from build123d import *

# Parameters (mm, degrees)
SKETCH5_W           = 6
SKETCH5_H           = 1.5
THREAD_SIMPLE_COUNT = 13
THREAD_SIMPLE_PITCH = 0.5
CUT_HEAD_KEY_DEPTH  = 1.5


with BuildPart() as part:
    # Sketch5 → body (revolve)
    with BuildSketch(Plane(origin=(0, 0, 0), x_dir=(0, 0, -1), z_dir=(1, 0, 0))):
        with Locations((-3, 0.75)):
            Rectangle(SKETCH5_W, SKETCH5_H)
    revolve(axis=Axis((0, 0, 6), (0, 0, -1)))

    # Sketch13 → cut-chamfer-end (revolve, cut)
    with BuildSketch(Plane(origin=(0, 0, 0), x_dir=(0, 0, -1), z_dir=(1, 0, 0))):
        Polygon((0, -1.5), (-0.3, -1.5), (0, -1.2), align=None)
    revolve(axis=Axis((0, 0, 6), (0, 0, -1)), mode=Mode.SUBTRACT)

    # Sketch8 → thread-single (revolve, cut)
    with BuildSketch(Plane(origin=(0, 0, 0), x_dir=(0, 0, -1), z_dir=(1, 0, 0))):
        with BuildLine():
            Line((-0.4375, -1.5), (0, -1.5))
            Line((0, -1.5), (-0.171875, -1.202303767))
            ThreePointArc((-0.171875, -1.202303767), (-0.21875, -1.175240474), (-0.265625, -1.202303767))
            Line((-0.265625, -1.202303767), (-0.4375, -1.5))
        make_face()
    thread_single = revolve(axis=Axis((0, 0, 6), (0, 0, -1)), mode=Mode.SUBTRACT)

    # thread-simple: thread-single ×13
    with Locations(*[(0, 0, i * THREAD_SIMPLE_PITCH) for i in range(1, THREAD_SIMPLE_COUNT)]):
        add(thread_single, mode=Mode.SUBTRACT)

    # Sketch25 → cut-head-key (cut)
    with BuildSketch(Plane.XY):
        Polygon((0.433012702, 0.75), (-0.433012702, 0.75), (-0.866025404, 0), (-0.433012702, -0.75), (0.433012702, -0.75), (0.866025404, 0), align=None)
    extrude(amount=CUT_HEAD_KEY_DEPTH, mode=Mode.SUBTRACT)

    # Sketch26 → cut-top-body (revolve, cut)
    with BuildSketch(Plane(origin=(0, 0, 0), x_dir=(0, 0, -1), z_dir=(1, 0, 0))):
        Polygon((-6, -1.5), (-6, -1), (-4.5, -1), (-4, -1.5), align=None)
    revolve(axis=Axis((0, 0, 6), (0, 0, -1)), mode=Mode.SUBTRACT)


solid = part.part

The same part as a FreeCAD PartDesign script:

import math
import FreeCAD as App
import Part
import Sketcher
Q = App.Units.Quantity

doc = App.newDocument("Part")
params = doc.addObject("Spreadsheet::Sheet", "Params")
for row, (alias, value) in enumerate([
    ("sketch1_height", "6 mm"),
    ("sketch1_width", "1.5 mm"),
    ("revolution_angle", "360 deg"),
    ("sketch2_width", "0.3 mm"),
    ("groove_angle", "360 deg"),
    ("groove2_angle", "360 deg"),
    ("linearpattern_pitch", "0.5 mm"),
    ("pocket1_length", "1.5 mm"),
    ("sketch5_height", "2 mm"),
    ("sketch5_width", "0.5 mm"),
    ("groove3_angle", "360 deg"),
], start=1):
    params.set(f"A{row}", alias)
    params.set(f"B{row}", "=" + value)
    params.setAlias(f"B{row}", alias)

body = doc.addObject("PartDesign::Body", "Body")

# Sketch on YZ plane
sketch1 = doc.addObject("Sketcher::SketchObject", "Sketch")
body.addObject(sketch1)
sketch1.AttachmentSupport = (doc.YZ_Plane, [""])
sketch1.MapMode = "FlatFace"
sketch1.addGeometry([
    Part.LineSegment(App.Vector(1.5, 6, 0), App.Vector(0, 6, 0)),
    Part.LineSegment(App.Vector(0, 6, 0), App.Vector(0, 0, 0)),
    Part.LineSegment(App.Vector(0, 0, 0), App.Vector(1.5, 0, 0)),
    Part.LineSegment(App.Vector(1.5, 0, 0), App.Vector(1.5, 6, 0)),
], False)
sketch1.addConstraint([
    Sketcher.Constraint("Coincident", 0, 2, 1, 1),
    Sketcher.Constraint("Coincident", 1, 2, 2, 1),
    Sketcher.Constraint("Coincident", 2, 2, 3, 1),
    Sketcher.Constraint("Coincident", 3, 2, 0, 1),
    Sketcher.Constraint("Horizontal", 0),
    Sketcher.Constraint("Vertical", 1),
    Sketcher.Constraint("Horizontal", 2),
    Sketcher.Constraint("Vertical", 3),
    Sketcher.Constraint("Coincident", 1, 2, -1, 1),
    Sketcher.Constraint("DistanceY", 1, 2, 1, 1, Q("6 mm")),
    Sketcher.Constraint("DistanceX", 0, 2, 0, 1, Q("1.5 mm")),
])
sketch1.setExpression("Constraints[9]", "Params.sketch1_height")
sketch1.setExpression("Constraints[10]", "Params.sketch1_width")
revolution = doc.addObject("PartDesign::Revolution", "Revolution")
body.addObject(revolution)
revolution.Profile = sketch1
revolution.ReferenceAxis = (sketch1, ["V_Axis"])
revolution.setExpression("Angle", "Params.revolution_angle")

# Sketch on YZ plane
sketch2 = doc.addObject("Sketcher::SketchObject", "Sketch001")
body.addObject(sketch2)
sketch2.AttachmentSupport = (doc.YZ_Plane, [""])
sketch2.MapMode = "FlatFace"
sketch2.addGeometry([
    Part.LineSegment(App.Vector(-1.5, 0.3, 0), App.Vector(-1.5, 0, 0)),
    Part.LineSegment(App.Vector(-1.5, 0, 0), App.Vector(-1.2, 0, 0)),
    Part.LineSegment(App.Vector(-1.2, 0, 0), App.Vector(-1.5, 0.3, 0)),
], False)
sketch2.addConstraint([
    Sketcher.Constraint("Coincident", 0, 2, 1, 1),
    Sketcher.Constraint("Coincident", 1, 2, 2, 1),
    Sketcher.Constraint("Coincident", 2, 2, 0, 1),
    Sketcher.Constraint("Vertical", 0),
    Sketcher.Constraint("Horizontal", 1),
    Sketcher.Constraint("PointOnObject", 0, 2, -1),
    Sketcher.Constraint("Equal", 1, 0),
    Sketcher.Constraint("DistanceX", 1, 1, 1, 2, Q("0.3 mm")),
    Sketcher.Constraint("DistanceX", 0, 2, -1, 1, Q("1.5 mm")),
])
sketch2.setExpression("Constraints[7]", "Params.sketch2_width")
groove = doc.addObject("PartDesign::Groove", "Groove")
body.addObject(groove)
groove.Profile = sketch2
groove.ReferenceAxis = (sketch2, ["V_Axis"])
groove.setExpression("Angle", "Params.groove_angle")

# Sketch on YZ plane
sketch3 = doc.addObject("Sketcher::SketchObject", "Sketch002")
body.addObject(sketch3)
sketch3.AttachmentSupport = (doc.YZ_Plane, [""])
sketch3.MapMode = "FlatFace"
sketch3.addGeometry([
    Part.LineSegment(App.Vector(-1.5, 0.44, 0), App.Vector(-1.5, 0, 0)),
    Part.LineSegment(App.Vector(-1.5, 0, 0), App.Vector(-1.2, 0.17, 0)),
    Part.ArcOfCircle(Part.Circle(App.Vector(-1.23, 0.22, 0), App.Vector(0, 0, 1), 0.05), math.radians(-60), math.radians(60)),
    Part.LineSegment(App.Vector(-1.2, 0.27, 0), App.Vector(-1.5, 0.44, 0)),
], False)
sketch3.addConstraint([
    Sketcher.Constraint("Coincident", 0, 2, 1, 1),
    Sketcher.Constraint("Tangent", 1, 2, 2, 1),
    Sketcher.Constraint("Tangent", 2, 2, 3, 1),
    Sketcher.Constraint("Coincident", 3, 2, 0, 1),
    Sketcher.Constraint("Vertical", 0),
    Sketcher.Constraint("PointOnObject", 0, 2, -1),
    Sketcher.Constraint("Vertical", 1, 2, 2, 2),
    Sketcher.Constraint("Angle", 1, Q("30 deg")),
    Sketcher.Constraint("DistanceX", 0, 2, -1, 1, Q("1.5 mm")),
    Sketcher.Constraint("DistanceY", 0, 2, 0, 1, Q("0.4375 mm")),
    Sketcher.Constraint("Radius", 2, Q("0.054127 mm")),
])
groove2 = doc.addObject("PartDesign::Groove", "Groove001")
body.addObject(groove2)
groove2.Profile = sketch3
groove2.ReferenceAxis = (sketch3, ["V_Axis"])
groove2.setExpression("Angle", "Params.groove2_angle")
doc.recompute()

linearpattern = doc.addObject("PartDesign::LinearPattern", "LinearPattern")
body.addObject(linearpattern)
linearpattern.Originals = [groove2]
linearpattern.Direction = (doc.Z_Axis, [""])
linearpattern.Mode = "offset"
linearpattern.setExpression("Offset", "Params.linearpattern_pitch")
linearpattern.Occurrences = 13
body.Tip = linearpattern

# Sketch on XY plane
sketch4 = doc.addObject("Sketcher::SketchObject", "Sketch003")
body.addObject(sketch4)
sketch4.AttachmentSupport = (doc.XY_Plane, [""])
sketch4.MapMode = "FlatFace"
sketch4.addGeometry([
    Part.LineSegment(App.Vector(0.4, 0.8, 0), App.Vector(-0.4, 0.8, 0)),  # 0
    Part.LineSegment(App.Vector(-0.4, 0.8, 0), App.Vector(-0.9, 0, 0)),  # 1
    Part.LineSegment(App.Vector(-0.9, 0, 0), App.Vector(-0.4, -0.8, 0)),  # 2
    Part.LineSegment(App.Vector(-0.4, -0.8, 0), App.Vector(0.4, -0.8, 0)),  # 3
    Part.LineSegment(App.Vector(0.4, -0.8, 0), App.Vector(0.9, 0, 0)),  # 4
    Part.LineSegment(App.Vector(0.9, 0, 0), App.Vector(0.4, 0.8, 0)),  # 5
], False)
sketch4.addConstraint([
    Sketcher.Constraint("Coincident", 0, 2, 1, 1),
    Sketcher.Constraint("Coincident", 1, 2, 2, 1),
    Sketcher.Constraint("Coincident", 2, 2, 3, 1),
    Sketcher.Constraint("Coincident", 3, 2, 4, 1),
    Sketcher.Constraint("Coincident", 4, 2, 5, 1),
    Sketcher.Constraint("Coincident", 5, 2, 0, 1),
    Sketcher.Constraint("Horizontal", 0),
    Sketcher.Constraint("Horizontal", 3),
    Sketcher.Constraint("Symmetric", 0, 2, 3, 2, -1, 1),
    Sketcher.Constraint("Symmetric", 1, 2, 4, 2, -1, 1),
    Sketcher.Constraint("PointOnObject", 1, 2, -1),
    Sketcher.Constraint("Parallel", 2, 5),
    Sketcher.Constraint("Vertical", 0, 2, 2, 2),
    Sketcher.Constraint("Angle", 1, Q("-120 deg")),
    Sketcher.Constraint("DistanceY", 2, 2, 0, 2, Q("1.5 mm")),
    Sketcher.Constraint("DistanceX", 0, 2, 0, 1, Q("0.866025 mm")),
])
pocket1 = doc.addObject("PartDesign::Pocket", "Pocket")
body.addObject(pocket1)
pocket1.Profile = sketch4
pocket1.setExpression("Length", "Params.pocket1_length")
pocket1.Reversed = True

# Sketch on YZ plane
sketch5 = doc.addObject("Sketcher::SketchObject", "Sketch004")
body.addObject(sketch5)
sketch5.AttachmentSupport = (doc.YZ_Plane, [""])
sketch5.MapMode = "FlatFace"
sketch5.addGeometry([
    Part.LineSegment(App.Vector(-1, 6, 0), App.Vector(-1.5, 6, 0)),
    Part.LineSegment(App.Vector(-1.5, 6, 0), App.Vector(-1.5, 4, 0)),
    Part.LineSegment(App.Vector(-1.5, 4, 0), App.Vector(-1, 4.5, 0)),
    Part.LineSegment(App.Vector(-1, 4.5, 0), App.Vector(-1, 6, 0)),
], False)
sketch5.addConstraint([
    Sketcher.Constraint("Coincident", 0, 2, 1, 1),
    Sketcher.Constraint("Coincident", 1, 2, 2, 1),
    Sketcher.Constraint("Coincident", 2, 2, 3, 1),
    Sketcher.Constraint("Coincident", 3, 2, 0, 1),
    Sketcher.Constraint("Horizontal", 0),
    Sketcher.Constraint("Vertical", 1),
    Sketcher.Constraint("Vertical", 3),
    Sketcher.Constraint("DistanceY", 1, 2, 1, 1, Q("2 mm")),
    Sketcher.Constraint("Angle", 2, Q("45 deg")),
    Sketcher.Constraint("DistanceX", 0, 2, 0, 1, Q("0.5 mm")),
    Sketcher.Constraint("DistanceY", -1, 1, 0, 2, Q("6 mm")),
    Sketcher.Constraint("DistanceX", 2, 2, -1, 1, Q("1 mm")),
])
sketch5.setExpression("Constraints[7]", "Params.sketch5_height")
sketch5.setExpression("Constraints[9]", "Params.sketch5_width")
groove3 = doc.addObject("PartDesign::Groove", "Groove002")
body.addObject(groove3)
groove3.Profile = sketch5
groove3.ReferenceAxis = (sketch5, ["V_Axis"])
groove3.setExpression("Angle", "Params.groove3_angle")

doc.recompute()
